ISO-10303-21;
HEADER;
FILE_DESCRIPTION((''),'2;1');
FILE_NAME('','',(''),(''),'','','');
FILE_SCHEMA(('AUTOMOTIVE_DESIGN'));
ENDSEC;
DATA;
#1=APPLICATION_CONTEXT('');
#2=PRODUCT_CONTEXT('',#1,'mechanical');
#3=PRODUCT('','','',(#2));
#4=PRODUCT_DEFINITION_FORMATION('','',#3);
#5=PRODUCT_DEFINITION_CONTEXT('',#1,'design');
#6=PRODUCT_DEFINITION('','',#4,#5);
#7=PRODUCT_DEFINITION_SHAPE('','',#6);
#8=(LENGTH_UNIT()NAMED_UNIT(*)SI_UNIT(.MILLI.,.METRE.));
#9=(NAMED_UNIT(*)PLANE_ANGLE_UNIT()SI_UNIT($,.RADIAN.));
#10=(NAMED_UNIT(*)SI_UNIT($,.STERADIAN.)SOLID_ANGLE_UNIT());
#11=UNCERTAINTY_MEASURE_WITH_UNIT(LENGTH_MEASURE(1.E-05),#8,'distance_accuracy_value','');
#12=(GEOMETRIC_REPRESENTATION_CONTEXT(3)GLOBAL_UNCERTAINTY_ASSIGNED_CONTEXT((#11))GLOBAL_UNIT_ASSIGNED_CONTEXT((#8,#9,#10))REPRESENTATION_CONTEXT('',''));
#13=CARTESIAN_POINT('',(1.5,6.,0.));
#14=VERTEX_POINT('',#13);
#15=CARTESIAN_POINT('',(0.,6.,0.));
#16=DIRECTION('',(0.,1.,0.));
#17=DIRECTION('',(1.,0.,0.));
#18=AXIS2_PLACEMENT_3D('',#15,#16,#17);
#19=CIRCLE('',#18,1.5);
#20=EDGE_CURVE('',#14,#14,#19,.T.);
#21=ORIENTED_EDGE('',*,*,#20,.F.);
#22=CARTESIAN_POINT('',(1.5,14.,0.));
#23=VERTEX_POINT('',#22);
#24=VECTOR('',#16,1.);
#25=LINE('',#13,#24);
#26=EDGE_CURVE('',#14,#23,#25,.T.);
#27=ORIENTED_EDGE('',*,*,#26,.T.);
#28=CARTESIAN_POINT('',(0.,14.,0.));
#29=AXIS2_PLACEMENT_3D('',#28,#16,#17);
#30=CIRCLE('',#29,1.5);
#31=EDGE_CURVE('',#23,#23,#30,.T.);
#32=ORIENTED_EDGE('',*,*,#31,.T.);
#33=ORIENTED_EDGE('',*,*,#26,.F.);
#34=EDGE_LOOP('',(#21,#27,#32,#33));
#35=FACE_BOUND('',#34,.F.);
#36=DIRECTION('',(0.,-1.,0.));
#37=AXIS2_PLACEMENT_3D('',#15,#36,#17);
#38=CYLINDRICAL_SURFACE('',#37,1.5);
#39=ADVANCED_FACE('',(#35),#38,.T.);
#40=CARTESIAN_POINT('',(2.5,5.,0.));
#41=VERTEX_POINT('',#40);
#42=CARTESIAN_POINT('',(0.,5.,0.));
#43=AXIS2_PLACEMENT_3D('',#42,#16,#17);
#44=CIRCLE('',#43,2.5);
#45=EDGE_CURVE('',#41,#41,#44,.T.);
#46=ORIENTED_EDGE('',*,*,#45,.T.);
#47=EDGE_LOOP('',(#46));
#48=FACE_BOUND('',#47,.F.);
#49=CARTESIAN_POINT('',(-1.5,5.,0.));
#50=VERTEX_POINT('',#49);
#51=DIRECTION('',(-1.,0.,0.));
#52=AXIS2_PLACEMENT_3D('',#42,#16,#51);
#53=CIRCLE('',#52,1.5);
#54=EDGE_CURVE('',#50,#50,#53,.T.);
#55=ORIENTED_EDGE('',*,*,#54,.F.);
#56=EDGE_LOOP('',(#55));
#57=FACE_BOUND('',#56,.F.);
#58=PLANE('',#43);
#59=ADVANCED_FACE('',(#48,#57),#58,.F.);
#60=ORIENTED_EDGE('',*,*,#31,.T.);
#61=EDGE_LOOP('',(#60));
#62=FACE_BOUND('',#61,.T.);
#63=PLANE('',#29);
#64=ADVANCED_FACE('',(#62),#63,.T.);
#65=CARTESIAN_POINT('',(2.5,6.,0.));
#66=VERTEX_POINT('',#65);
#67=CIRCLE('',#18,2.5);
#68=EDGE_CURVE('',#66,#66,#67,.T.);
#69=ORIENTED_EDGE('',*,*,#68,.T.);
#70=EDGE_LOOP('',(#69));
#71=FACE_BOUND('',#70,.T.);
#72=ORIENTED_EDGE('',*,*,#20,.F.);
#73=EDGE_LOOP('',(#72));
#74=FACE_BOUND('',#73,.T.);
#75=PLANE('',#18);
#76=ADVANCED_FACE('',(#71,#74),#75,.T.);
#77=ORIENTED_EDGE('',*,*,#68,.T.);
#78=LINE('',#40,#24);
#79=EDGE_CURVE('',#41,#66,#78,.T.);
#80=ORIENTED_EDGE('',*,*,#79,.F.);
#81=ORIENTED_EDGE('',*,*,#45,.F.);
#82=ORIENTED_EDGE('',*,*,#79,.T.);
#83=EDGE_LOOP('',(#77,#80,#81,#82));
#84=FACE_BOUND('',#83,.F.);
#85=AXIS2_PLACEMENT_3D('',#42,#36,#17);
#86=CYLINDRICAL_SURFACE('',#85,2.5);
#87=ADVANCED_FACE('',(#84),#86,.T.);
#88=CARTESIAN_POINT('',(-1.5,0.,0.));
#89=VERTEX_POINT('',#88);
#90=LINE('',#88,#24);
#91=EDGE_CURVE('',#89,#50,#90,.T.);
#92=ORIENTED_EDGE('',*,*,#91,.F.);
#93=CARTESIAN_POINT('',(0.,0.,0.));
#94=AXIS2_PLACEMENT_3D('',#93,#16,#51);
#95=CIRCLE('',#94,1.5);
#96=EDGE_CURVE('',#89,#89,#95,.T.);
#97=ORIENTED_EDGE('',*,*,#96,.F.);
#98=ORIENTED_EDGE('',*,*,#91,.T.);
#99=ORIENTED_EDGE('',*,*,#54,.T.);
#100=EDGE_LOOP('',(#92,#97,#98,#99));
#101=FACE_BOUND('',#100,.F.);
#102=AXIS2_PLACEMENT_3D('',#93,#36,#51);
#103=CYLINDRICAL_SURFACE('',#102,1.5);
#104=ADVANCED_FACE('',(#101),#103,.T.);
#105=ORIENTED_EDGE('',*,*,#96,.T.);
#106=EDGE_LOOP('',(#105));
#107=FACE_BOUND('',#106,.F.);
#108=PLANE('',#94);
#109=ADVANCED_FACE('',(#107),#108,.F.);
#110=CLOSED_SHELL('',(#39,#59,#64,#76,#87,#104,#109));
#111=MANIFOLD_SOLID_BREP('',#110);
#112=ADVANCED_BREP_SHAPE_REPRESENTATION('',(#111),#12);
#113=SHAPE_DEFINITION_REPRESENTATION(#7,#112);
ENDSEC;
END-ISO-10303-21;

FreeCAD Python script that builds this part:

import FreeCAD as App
import Part
import Sketcher
Q = App.Units.Quantity

doc = App.newDocument("Part")
body = doc.addObject("PartDesign::Body", "Body")

# Sketch on XZ plane
sketch1 = doc.addObject("Sketcher::SketchObject", "Sketch")
body.addObject(sketch1)
sketch1.AttachmentSupport = (doc.XZ_Plane, [""])
sketch1.MapMode = "FlatFace"
sketch1.addGeometry(Part.Circle(App.Vector(0, 0, 0), App.Vector(0, 0, 1), 1.5), False)
sketch1.addConstraint(Sketcher.Constraint("Coincident", 0, 3, -1, 1))
sketch1.addConstraint(Sketcher.Constraint("Diameter", 0, Q("3 mm")))
pad1 = doc.addObject("PartDesign::Pad", "Pad")
body.addObject(pad1)
pad1.Profile = sketch1
pad1.Length = 5
pad1.Reversed = True

# Sketch on XZ plane
sketch2 = doc.addObject("Sketcher::SketchObject", "Sketch001")
body.addObject(sketch2)
sketch2.AttachmentSupport = (doc.XZ_Plane, [""])
sketch2.MapMode = "FlatFace"
sketch2.AttachmentOffset = App.Placement(App.Vector(0, 0, -5), App.Rotation())
sketch2.addGeometry(Part.Circle(App.Vector(0, 0, 0), App.Vector(0, 0, 1), 2.5), False)
sketch2.addConstraint(Sketcher.Constraint("Coincident", 0, 3, -1, 1))
sketch2.addConstraint(Sketcher.Constraint("Diameter", 0, Q("5 mm")))
pad2 = doc.addObject("PartDesign::Pad", "Pad001")
body.addObject(pad2)
pad2.Profile = sketch2
pad2.Length = 1
pad2.Reversed = True

# Sketch on XZ plane
sketch3 = doc.addObject("Sketcher::SketchObject", "Sketch002")
body.addObject(sketch3)
sketch3.AttachmentSupport = (doc.XZ_Plane, [""])
sketch3.MapMode = "FlatFace"
sketch3.AttachmentOffset = App.Placement(App.Vector(0, 0, -6), App.Rotation())
sketch3.addGeometry(Part.Circle(App.Vector(0, 0, 0), App.Vector(0, 0, 1), 1.5), False)
sketch3.addConstraint(Sketcher.Constraint("Coincident", 0, 3, -1, 1))
sketch3.addConstraint(Sketcher.Constraint("Diameter", 0, Q("3 mm")))
pad3 = doc.addObject("PartDesign::Pad", "Pad002")
body.addObject(pad3)
pad3.Profile = sketch3
pad3.Length = 8
pad3.Reversed = True

doc.recompute()
